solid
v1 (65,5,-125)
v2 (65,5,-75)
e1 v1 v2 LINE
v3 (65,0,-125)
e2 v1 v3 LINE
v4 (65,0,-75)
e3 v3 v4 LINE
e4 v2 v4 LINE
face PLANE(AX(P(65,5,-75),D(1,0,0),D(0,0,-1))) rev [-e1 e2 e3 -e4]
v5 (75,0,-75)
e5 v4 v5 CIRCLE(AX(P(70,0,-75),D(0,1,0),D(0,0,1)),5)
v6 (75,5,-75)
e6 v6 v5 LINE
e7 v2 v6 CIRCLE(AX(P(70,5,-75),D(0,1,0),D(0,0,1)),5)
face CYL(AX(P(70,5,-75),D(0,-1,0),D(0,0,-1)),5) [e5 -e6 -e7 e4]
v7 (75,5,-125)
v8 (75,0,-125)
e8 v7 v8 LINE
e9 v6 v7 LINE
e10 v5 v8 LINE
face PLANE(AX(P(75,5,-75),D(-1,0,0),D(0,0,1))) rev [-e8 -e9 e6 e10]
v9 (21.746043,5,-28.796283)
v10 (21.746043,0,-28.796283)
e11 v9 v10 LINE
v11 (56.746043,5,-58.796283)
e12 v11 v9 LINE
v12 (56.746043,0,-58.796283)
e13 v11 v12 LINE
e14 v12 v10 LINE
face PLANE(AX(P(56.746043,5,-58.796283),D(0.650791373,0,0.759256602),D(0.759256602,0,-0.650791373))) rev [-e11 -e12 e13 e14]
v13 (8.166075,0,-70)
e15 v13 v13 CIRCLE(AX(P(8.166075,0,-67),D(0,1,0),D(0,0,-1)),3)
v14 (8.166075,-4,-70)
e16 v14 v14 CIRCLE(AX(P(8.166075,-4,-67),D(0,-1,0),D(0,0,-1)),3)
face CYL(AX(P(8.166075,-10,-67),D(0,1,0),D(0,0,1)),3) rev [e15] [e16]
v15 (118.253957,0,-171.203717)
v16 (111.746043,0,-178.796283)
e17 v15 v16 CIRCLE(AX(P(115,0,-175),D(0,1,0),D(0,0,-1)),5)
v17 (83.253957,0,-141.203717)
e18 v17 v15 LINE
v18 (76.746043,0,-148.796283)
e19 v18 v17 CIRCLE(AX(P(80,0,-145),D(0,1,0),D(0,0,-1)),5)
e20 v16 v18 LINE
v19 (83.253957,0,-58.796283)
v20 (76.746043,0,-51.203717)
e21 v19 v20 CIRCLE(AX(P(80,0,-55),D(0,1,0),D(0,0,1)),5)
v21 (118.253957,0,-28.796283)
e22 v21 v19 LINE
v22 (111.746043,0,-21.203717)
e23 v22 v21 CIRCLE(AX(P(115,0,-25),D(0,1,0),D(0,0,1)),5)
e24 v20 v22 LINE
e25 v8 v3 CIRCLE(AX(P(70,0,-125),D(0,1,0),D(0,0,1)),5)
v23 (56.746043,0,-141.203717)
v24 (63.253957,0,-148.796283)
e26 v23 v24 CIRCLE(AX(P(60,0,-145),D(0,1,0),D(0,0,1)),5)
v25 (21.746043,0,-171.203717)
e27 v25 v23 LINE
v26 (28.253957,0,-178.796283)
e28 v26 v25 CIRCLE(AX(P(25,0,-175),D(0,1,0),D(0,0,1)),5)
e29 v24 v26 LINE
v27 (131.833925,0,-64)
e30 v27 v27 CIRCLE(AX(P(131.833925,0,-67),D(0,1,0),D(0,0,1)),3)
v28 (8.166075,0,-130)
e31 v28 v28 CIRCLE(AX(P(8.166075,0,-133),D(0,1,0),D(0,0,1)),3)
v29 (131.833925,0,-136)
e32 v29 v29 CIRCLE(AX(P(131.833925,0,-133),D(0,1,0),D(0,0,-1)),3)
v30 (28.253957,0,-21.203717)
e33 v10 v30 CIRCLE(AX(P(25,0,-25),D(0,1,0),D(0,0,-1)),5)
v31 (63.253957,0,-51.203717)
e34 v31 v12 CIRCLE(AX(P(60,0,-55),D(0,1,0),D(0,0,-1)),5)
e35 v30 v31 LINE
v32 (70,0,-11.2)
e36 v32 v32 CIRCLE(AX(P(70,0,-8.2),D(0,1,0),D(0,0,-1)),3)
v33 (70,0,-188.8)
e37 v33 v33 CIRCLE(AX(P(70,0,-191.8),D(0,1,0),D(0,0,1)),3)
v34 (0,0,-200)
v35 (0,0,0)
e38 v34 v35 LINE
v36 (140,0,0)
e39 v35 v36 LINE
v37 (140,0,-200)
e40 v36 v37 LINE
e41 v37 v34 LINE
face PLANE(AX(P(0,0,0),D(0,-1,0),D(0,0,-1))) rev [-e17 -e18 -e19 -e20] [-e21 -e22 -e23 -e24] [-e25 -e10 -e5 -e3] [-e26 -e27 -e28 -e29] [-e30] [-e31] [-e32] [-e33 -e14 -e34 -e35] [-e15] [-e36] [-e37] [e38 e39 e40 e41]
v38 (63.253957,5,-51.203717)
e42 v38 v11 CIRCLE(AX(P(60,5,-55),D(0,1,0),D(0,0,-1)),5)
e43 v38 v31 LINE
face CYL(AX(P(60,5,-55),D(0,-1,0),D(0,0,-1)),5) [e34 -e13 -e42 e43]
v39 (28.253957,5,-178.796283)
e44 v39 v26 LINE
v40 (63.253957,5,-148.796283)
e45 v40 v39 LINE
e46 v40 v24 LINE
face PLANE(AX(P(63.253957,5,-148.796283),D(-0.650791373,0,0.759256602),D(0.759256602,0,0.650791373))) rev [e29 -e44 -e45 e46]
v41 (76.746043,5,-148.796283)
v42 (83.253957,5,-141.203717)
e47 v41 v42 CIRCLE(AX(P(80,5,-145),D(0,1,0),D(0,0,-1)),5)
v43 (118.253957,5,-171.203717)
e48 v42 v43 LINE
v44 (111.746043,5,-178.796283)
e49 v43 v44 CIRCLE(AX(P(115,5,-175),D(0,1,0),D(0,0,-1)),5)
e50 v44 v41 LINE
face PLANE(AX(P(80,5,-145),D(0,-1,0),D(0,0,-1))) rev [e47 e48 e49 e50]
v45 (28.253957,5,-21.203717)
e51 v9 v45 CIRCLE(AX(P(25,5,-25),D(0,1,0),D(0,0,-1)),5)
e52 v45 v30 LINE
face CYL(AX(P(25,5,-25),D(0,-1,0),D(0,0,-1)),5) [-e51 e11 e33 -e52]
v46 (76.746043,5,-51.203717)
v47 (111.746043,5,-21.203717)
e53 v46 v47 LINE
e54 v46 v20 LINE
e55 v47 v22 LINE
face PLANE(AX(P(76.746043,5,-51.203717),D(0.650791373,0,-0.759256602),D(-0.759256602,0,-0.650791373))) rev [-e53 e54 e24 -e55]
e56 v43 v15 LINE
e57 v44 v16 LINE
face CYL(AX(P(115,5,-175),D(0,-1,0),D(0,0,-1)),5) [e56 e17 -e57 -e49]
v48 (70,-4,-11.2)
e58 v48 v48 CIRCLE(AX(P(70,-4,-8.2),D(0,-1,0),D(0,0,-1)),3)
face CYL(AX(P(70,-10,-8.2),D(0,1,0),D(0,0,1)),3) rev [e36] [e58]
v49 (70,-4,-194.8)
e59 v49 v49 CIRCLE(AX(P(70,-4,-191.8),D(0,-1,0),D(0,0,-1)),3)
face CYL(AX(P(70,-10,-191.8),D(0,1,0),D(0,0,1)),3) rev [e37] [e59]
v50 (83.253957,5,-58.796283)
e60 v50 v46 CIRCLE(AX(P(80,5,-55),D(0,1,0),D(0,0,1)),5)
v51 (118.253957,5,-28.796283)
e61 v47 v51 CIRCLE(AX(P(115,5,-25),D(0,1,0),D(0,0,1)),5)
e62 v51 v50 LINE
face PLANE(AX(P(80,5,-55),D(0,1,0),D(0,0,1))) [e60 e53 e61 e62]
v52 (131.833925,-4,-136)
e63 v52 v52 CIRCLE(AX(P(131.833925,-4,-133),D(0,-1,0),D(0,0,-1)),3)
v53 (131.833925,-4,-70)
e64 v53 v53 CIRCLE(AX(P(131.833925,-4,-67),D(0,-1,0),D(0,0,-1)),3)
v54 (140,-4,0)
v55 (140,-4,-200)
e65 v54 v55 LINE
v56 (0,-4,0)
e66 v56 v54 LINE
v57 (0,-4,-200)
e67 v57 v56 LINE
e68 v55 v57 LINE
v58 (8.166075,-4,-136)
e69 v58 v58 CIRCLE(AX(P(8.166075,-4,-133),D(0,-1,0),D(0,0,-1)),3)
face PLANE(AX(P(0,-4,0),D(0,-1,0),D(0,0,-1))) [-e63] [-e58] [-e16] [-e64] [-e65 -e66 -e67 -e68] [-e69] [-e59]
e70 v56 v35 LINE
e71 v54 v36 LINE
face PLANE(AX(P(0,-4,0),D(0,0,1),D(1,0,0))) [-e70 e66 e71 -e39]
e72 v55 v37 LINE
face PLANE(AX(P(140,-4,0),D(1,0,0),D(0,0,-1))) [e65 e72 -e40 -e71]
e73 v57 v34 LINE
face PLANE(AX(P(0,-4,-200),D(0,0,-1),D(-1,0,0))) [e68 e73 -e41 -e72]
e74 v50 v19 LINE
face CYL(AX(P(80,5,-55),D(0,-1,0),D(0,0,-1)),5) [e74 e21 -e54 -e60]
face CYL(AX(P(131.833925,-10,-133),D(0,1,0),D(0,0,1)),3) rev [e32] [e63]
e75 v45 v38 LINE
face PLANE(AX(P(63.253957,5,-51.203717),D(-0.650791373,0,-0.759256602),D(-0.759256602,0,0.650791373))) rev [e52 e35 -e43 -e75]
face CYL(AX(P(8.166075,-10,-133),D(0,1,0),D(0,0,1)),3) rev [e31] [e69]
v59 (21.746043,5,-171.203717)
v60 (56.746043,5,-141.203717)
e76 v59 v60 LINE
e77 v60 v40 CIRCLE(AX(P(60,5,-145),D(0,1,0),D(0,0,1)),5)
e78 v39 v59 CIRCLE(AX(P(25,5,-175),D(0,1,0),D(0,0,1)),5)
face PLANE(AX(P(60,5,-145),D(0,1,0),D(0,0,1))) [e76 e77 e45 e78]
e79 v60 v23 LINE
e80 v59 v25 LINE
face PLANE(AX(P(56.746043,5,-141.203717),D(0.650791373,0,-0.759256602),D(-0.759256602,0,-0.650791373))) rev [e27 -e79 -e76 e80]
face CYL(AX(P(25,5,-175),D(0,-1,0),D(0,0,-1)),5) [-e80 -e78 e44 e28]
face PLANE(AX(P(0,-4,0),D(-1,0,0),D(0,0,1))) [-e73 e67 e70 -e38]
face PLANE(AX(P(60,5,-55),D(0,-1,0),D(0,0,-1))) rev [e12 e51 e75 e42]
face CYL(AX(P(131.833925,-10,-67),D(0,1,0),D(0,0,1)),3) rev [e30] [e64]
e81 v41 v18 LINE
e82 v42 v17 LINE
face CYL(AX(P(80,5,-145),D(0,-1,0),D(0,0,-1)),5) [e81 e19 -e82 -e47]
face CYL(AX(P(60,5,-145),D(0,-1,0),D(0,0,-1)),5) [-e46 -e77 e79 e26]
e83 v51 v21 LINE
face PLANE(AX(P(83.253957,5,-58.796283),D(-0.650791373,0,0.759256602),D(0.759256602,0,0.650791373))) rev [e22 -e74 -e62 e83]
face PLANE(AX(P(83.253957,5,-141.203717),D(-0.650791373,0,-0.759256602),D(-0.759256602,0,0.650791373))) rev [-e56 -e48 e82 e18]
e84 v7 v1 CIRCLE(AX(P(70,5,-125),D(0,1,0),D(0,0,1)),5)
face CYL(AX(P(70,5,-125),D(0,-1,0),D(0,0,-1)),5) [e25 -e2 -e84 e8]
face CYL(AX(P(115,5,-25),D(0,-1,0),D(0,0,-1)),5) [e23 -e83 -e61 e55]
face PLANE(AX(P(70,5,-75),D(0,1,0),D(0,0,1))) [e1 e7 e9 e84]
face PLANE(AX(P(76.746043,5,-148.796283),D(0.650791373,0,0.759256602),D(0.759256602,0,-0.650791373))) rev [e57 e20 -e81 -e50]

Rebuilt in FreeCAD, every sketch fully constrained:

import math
import FreeCAD as App
import Part
import Sketcher

V = App.Vector
Q = App.Units.Quantity

doc = App.newDocument("Part")
params = doc.addObject("Spreadsheet::Sheet", "Params")
for row, (alias, value) in enumerate([
    ("sketch1_width", "140 mm"),
    ("sketch1_height", "200 mm"),
    ("pad1_length", "4 mm"),
    ("sketch2_radius", "5 mm"),
    ("sketch2_height", "50 mm"),
    ("pad2_length", "5 mm"),
    ("sketch3_diameter", "6 mm"),
    ("pocket1_length", "10 mm"),
], start=1):
    params.set(f"A{row}", alias)
    params.set(f"B{row}", "=" + value)
    params.setAlias(f"B{row}", alias)

body = doc.addObject("PartDesign::Body", "Body")

sketch1 = doc.addObject("Sketcher::SketchObject", "Sketch")
body.addObject(sketch1)
sketch1.AttachmentSupport = (doc.XZ_Plane, [""])
sketch1.MapMode = "FlatFace"
sketch1.addGeometry([
    Part.LineSegment(V(0, -200, 0), V(0, 0, 0)),
    Part.LineSegment(V(0, 0, 0), V(140, 0, 0)),
    Part.LineSegment(V(140, 0, 0), V(140, -200, 0)),
    Part.LineSegment(V(140, -200, 0), V(0, -200, 0)),
], False)
sketch1.addConstraint([
    Sketcher.Constraint("Coincident", 0, 2, 1, 1),
    Sketcher.Constraint("Coincident", 1, 2, 2, 1),
    Sketcher.Constraint("Coincident", 2, 2, 3, 1),
    Sketcher.Constraint("Coincident", 3, 2, 0, 1),
    Sketcher.Constraint("Vertical", 0),
    Sketcher.Constraint("Horizontal", 1),
    Sketcher.Constraint("Vertical", 2),
    Sketcher.Constraint("Horizontal", 3),
    Sketcher.Constraint("Coincident", 0, 2, -1, 1),
    Sketcher.Constraint("DistanceX", 1, 1, 1, 2, Q("140 mm")),
    Sketcher.Constraint("DistanceY", 0, 1, 0, 2, Q("200 mm")),
])
sketch1.setExpression("Constraints[9]", "Params.sketch1_width")
sketch1.setExpression("Constraints[10]", "Params.sketch1_height")
pad1 = doc.addObject("PartDesign::Pad", "Pad")
body.addObject(pad1)
pad1.Profile = sketch1
pad1.setExpression("Length", "Params.pad1_length")

sketch2 = doc.addObject("Sketcher::SketchObject", "Sketch001")
body.addObject(sketch2)
sketch2.AttachmentSupport = (doc.XZ_Plane, [""])
sketch2.MapMode = "FlatFace"
sketch2.addGeometry([
    Part.LineSegment(V(118.253957, -28.796283, 0), V(83.253957, -58.796283, 0)),
    Part.ArcOfCircle(Part.Circle(V(80, -55, 0), V(0, 0, 1), 5), math.radians(130.601295), math.radians(310.601295)),
    Part.LineSegment(V(76.746043, -51.203717, 0), V(111.746043, -21.203717, 0)),
    Part.ArcOfCircle(Part.Circle(V(115, -25, 0), V(0, 0, 1), 5), math.radians(-49.398705), math.radians(130.601295)),
    Part.LineSegment(V(65, -125, 0), V(65, -75, 0)),
    Part.ArcOfCircle(Part.Circle(V(70, -75, 0), V(0, 0, 1), 5), math.radians(0), math.radians(180)),
    Part.LineSegment(V(75, -75, 0), V(75, -125, 0)),
    Part.ArcOfCircle(Part.Circle(V(70, -125, 0), V(0, 0, 1), 5), math.radians(180), math.radians(360)),
    Part.LineSegment(V(56.746043, -58.796283, 0), V(21.746043, -28.796283, 0)),
    Part.ArcOfCircle(Part.Circle(V(25, -25, 0), V(0, 0, 1), 5), math.radians(49.398705), math.radians(229.398705)),
    Part.LineSegment(V(28.253957, -21.203717, 0), V(63.253957, -51.203717, 0)),
    Part.ArcOfCircle(Part.Circle(V(60, -55, 0), V(0, 0, 1), 5), math.radians(-130.601295), math.radians(49.398705)),
    Part.LineSegment(V(21.746043, -171.203717, 0), V(56.746043, -141.203717, 0)),
    Part.ArcOfCircle(Part.Circle(V(60, -145, 0), V(0, 0, 1), 5), math.radians(-49.398705), math.radians(130.601295)),
    Part.LineSegment(V(63.253957, -148.796283, 0), V(28.253957, -178.796283, 0)),
    Part.ArcOfCircle(Part.Circle(V(25, -175, 0), V(0, 0, 1), 5), math.radians(130.601295), math.radians(310.601295)),
    Part.LineSegment(V(83.253957, -141.203717, 0), V(118.253957, -171.203717, 0)),
    Part.ArcOfCircle(Part.Circle(V(115, -175, 0), V(0, 0, 1), 5), math.radians(-130.601295), math.radians(49.398705)),
    Part.LineSegment(V(111.746043, -178.796283, 0), V(76.746043, -148.796283, 0)),
    Part.ArcOfCircle(Part.Circle(V(80, -145, 0), V(0, 0, 1), 5), math.radians(49.398705), math.radians(229.398705)),
], False)
sketch2.addConstraint([
    Sketcher.Constraint("Tangent", 0, 2, 1, 2),
    Sketcher.Constraint("Tangent", 1, 1, 2, 1),
    Sketcher.Constraint("Tangent", 2, 2, 3, 2),
    Sketcher.Constraint("Tangent", 3, 1, 0, 1),
    Sketcher.Constraint("Tangent", 4, 2, 5, 2),
    Sketcher.Constraint("Tangent", 5, 1, 6, 1),
    Sketcher.Constraint("Tangent", 6, 2, 7, 2),
    Sketcher.Constraint("Tangent", 7, 1, 4, 1),
    Sketcher.Constraint("Tangent", 8, 2, 9, 2),
    Sketcher.Constraint("Tangent", 9, 1, 10, 1),
    Sketcher.Constraint("Tangent", 10, 2, 11, 2),
    Sketcher.Constraint("Tangent", 11, 1, 8, 1),
    Sketcher.Constraint("Tangent", 12, 2, 13, 2),
    Sketcher.Constraint("Tangent", 13, 1, 14, 1),
    Sketcher.Constraint("Tangent", 14, 2, 15, 2),
    Sketcher.Constraint("Tangent", 15, 1, 12, 1),
    Sketcher.Constraint("Tangent", 16, 2, 17, 2),
    Sketcher.Constraint("Tangent", 17, 1, 18, 1),
    Sketcher.Constraint("Tangent", 18, 2, 19, 2),
    Sketcher.Constraint("Tangent", 19, 1, 16, 1),
    Sketcher.Constraint("Vertical", 4),
    Sketcher.Constraint("Vertical", 6),
    Sketcher.Constraint("Equal", 1, 3),
    Sketcher.Constraint("Equal", 3, 5),
    Sketcher.Constraint("Equal", 7, 9),
    Sketcher.Constraint("Equal", 9, 11),
    Sketcher.Constraint("Equal", 11, 13),
    Sketcher.Constraint("Equal", 13, 15),
    Sketcher.Constraint("Equal", 15, 17),
    Sketcher.Constraint("Equal", 17, 19),
    Sketcher.Constraint("Parallel", 2, 12),
    Sketcher.Constraint("Parallel", 10, 16),
    Sketcher.Constraint("Horizontal", 3, 3, 9, 3),
    Sketcher.Constraint("Horizontal", 1, 3, 11, 3),
    Sketcher.Constraint("Horizontal", 15, 3, 17, 3),
    Sketcher.Constraint("Horizontal", 13, 3, 19, 3),
    Sketcher.Constraint("Horizontal", 3, 1, 8, 2),
    Sketcher.Constraint("Vertical", 11, 3, 13, 3),
    Sketcher.Constraint("Vertical", 9, 3, 15, 3),
    Sketcher.Constraint("Vertical", 3, 3, 17, 3),
    Sketcher.Constraint("Radius", 1, Q("5 mm")),
    Sketcher.Constraint("DistanceY", 4, 1, 4, 2, Q("50 mm")),
    Sketcher.Constraint("DistanceX", -1, 1, 1, 3, Q("80 mm")),
    Sketcher.Constraint("DistanceY", 1, 3, -1, 1, Q("55 mm")),
    Sketcher.Constraint("DistanceX", -1, 1, 3, 3, Q("115 mm")),
    Sketcher.Constraint("DistanceY", 3, 3, -1, 1, Q("25 mm")),
    Sketcher.Constraint("DistanceX", -1, 1, 5, 3, Q("70 mm")),
    Sketcher.Constraint("DistanceY", 5, 3, -1, 1, Q("75 mm")),
    Sketcher.Constraint("DistanceX", -1, 1, 9, 3, Q("25 mm")),
    Sketcher.Constraint("DistanceY", 13, 3, -1, 1, Q("145 mm")),
])
sketch2.setExpression("Constraints[40]", "Params.sketch2_radius")
sketch2.setExpression("Constraints[41]", "Params.sketch2_height")
pad2 = doc.addObject("PartDesign::Pad", "Pad001")
body.addObject(pad2)
pad2.Profile = sketch2
pad2.setExpression("Length", "Params.pad2_length")
pad2.Reversed = True

sketch3 = doc.addObject("Sketcher::SketchObject", "Sketch002")
body.addObject(sketch3)
sketch3.AttachmentSupport = (doc.XZ_Plane, [""])
sketch3.MapMode = "FlatFace"
sketch3.addGeometry([
    Part.Circle(V(70, -191.8, 0), V(0, 0, 1), 3),
    Part.Circle(V(8.166075, -133, 0), V(0, 0, 1), 3),
    Part.Circle(V(70, -8.2, 0), V(0, 0, 1), 3),
    Part.Circle(V(8.166075, -67, 0), V(0, 0, 1), 3),
    Part.Circle(V(131.833925, -67, 0), V(0, 0, 1), 3),
    Part.Circle(V(131.833925, -133, 0), V(0, 0, 1), 3),
], False)
sketch3.addConstraint([
    Sketcher.Constraint("Equal", 0, 1),
    Sketcher.Constraint("Equal", 1, 2),
    Sketcher.Constraint("Equal", 2, 3),
    Sketcher.Constraint("Equal", 3, 4),
    Sketcher.Constraint("Equal", 4, 5),
    Sketcher.Constraint("Horizontal", 3, 3, 4, 3),
    Sketcher.Constraint("Horizontal", 1, 3, 5, 3),
    Sketcher.Constraint("Vertical", 0, 3, 2, 3),
    Sketcher.Constraint("Vertical", 1, 3, 3, 3),
    Sketcher.Constraint("Vertical", 4, 3, 5, 3),
    Sketcher.Constraint("Diameter", 0, Q("6 mm")),
    Sketcher.Constraint("DistanceX", -1, 1, 0, 3, Q("70 mm")),
    Sketcher.Constraint("DistanceY", 1, 3, -1, 1, Q("133 mm")),
    Sketcher.Constraint("DistanceY", 3, 3, -1, 1, Q("67 mm")),
    Sketcher.Constraint("DistanceY", 0, 3, -1, 1, Q("191.8 mm")),
    Sketcher.Constraint("DistanceY", 2, 3, -1, 1, Q("8.2 mm")),
    Sketcher.Constraint("DistanceX", 3, 3, 4, 3, Q("123.667851 mm")),
    Sketcher.Constraint("DistanceX", -1, 1, 1, 3, Q("8.166075 mm")),
])
sketch3.setExpression("Constraints[10]", "Params.sketch3_diameter")
pocket1 = doc.addObject("PartDesign::Pocket", "Pocket")
body.addObject(pocket1)
pocket1.Profile = sketch3
pocket1.setExpression("Length", "Params.pocket1_length")
pocket1.Reversed = True

doc.recompute()
